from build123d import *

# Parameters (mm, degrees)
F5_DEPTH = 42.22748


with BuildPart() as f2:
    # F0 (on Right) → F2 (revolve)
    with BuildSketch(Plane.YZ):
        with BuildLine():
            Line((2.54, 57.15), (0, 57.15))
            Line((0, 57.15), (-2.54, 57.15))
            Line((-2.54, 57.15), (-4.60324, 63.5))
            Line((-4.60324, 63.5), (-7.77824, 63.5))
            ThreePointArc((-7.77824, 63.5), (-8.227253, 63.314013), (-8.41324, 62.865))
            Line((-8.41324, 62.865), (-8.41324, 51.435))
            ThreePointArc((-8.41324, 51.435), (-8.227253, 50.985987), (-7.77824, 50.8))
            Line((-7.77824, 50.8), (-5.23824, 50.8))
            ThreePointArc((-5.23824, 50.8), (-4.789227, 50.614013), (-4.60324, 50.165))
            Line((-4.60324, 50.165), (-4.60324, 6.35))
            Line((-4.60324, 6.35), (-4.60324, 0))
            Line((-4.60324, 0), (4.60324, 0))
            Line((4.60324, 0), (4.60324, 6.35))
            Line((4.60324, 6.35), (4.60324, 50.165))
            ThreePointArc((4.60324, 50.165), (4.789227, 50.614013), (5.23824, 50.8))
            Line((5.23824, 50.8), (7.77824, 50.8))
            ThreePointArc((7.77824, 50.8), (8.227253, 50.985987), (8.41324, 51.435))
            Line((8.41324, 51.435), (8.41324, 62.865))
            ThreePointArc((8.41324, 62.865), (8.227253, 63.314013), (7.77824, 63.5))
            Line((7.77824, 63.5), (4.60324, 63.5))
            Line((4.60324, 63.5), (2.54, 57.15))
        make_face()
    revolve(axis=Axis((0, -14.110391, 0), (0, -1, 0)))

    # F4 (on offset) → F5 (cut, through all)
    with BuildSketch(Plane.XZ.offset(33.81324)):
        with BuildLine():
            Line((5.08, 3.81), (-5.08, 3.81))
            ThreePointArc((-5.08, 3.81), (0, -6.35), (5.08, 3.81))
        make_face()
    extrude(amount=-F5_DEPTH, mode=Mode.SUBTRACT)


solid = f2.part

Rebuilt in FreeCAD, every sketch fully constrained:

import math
import FreeCAD as App
import Part
import Sketcher

V = App.Vector
Q = App.Units.Quantity

doc = App.newDocument("Part")
params = doc.addObject("Spreadsheet::Sheet", "Params")
for row, (alias, value) in enumerate([
    ("sketch1_width", "0.2 in"),
    ("sketch1_width2", "0.1 in"),
    ("sketch1_radius", "0.025 in"),
    ("sketch1_height", "0.45 in"),
    ("revolution_angle", "360 deg"),
    ("sketch2_radius", "0.25 in"),
    ("sketch2_width", "0.4 in"),
], start=1):
    params.set(f"A{row}", alias)
    params.set(f"B{row}", "=" + value)
    params.setAlias(f"B{row}", alias)

body = doc.addObject("PartDesign::Body", "Body")

# Sketch on YZ plane
sketch1 = body.newObject("Sketcher::SketchObject", "Sketch")
sketch1.AttachmentSupport = (doc.getObject("YZ_Plane"), [""])
sketch1.MapMode = "FlatFace"
sketch1.addGeometry([
    Part.LineSegment(V(2.5, 57.1, 0), V(-2.5, 57.1, 0)),  # 0
    Part.LineSegment(V(-2.5, 57.1, 0), V(-4.6, 63.5, 0)),  # 1
    Part.LineSegment(V(-4.6, 63.5, 0), V(-7.8, 63.5, 0)),  # 2
    Part.ArcOfCircle(Part.Circle(V(-7.8, 62.9, 0), V(0, 0, 1), 0.6), math.radians(90), math.radians(180)),  # 3
    Part.LineSegment(V(-8.4, 62.9, 0), V(-8.4, 51.4, 0)),  # 4
    Part.ArcOfCircle(Part.Circle(V(-7.8, 51.4, 0), V(0, 0, 1), 0.6), math.radians(180), math.radians(270)),  # 5
    Part.LineSegment(V(-7.8, 50.8, 0), V(-5.2, 50.8, 0)),  # 6
    Part.ArcOfCircle(Part.Circle(V(-5.2, 50.2, 0), V(0, 0, 1), 0.6), math.radians(0), math.radians(90)),  # 7
    Part.LineSegment(V(-4.6, 50.2, 0), V(-4.6, 0, 0)),  # 8
    Part.LineSegment(V(-4.6, 0, 0), V(4.6, 0, 0)),  # 9
    Part.LineSegment(V(4.6, 0, 0), V(4.6, 50.2, 0)),  # 10
    Part.ArcOfCircle(Part.Circle(V(5.2, 50.2, 0), V(0, 0, 1), 0.6), math.radians(90), math.radians(180)),  # 11
    Part.LineSegment(V(5.2, 50.8, 0), V(7.8, 50.8, 0)),  # 12
    Part.ArcOfCircle(Part.Circle(V(7.8, 51.4, 0), V(0, 0, 1), 0.6), math.radians(-90), math.radians(0)),  # 13
    Part.LineSegment(V(8.4, 51.4, 0), V(8.4, 62.9, 0)),  # 14
    Part.ArcOfCircle(Part.Circle(V(7.8, 62.9, 0), V(0, 0, 1), 0.6), math.radians(0), math.radians(90)),  # 15
    Part.LineSegment(V(7.8, 63.5, 0), V(4.6, 63.5, 0)),  # 16
    Part.LineSegment(V(4.6, 63.5, 0), V(2.5, 57.1, 0)),  # 17
], False)
sketch1.addConstraint([
    Sketcher.Constraint("Coincident", 0, 2, 1, 1),
    Sketcher.Constraint("Coincident", 1, 2, 2, 1),
    Sketcher.Constraint("Tangent", 2, 2, 3, 1),
    Sketcher.Constraint("Tangent", 3, 2, 4, 1),
    Sketcher.Constraint("Tangent", 4, 2, 5, 1),
    Sketcher.Constraint("Tangent", 5, 2, 6, 1),
    Sketcher.Constraint("Tangent", 6, 2, 7, 2),
    Sketcher.Constraint("Tangent", 7, 1, 8, 1),
    Sketcher.Constraint("Coincident", 8, 2, 9, 1),
    Sketcher.Constraint("Coincident", 9, 2, 10, 1),
    Sketcher.Constraint("Tangent", 10, 2, 11, 2),
    Sketcher.Constraint("Tangent", 11, 1, 12, 1),
    Sketcher.Constraint("Tangent", 12, 2, 13, 1),
    Sketcher.Constraint("Tangent", 13, 2, 14, 1),
    Sketcher.Constraint("Tangent", 14, 2, 15, 1),
    Sketcher.Constraint("Tangent", 15, 2, 16, 1),
    Sketcher.Constraint("Coincident", 16, 2, 17, 1),
    Sketcher.Constraint("Coincident", 17, 2, 0, 1),
    Sketcher.Constraint("Horizontal", 0),
    Sketcher.Constraint("Horizontal", 2),
    Sketcher.Constraint("Vertical", 4),
    Sketcher.Constraint("Horizontal", 6),
    Sketcher.Constraint("Vertical", 8),
    Sketcher.Constraint("Horizontal", 9),
    Sketcher.Constraint("Vertical", 10),
    Sketcher.Constraint("Horizontal", 12),
    Sketcher.Constraint("Vertical", 14),
    Sketcher.Constraint("Horizontal", 16),
    Sketcher.Constraint("Equal", 3, 5),
    Sketcher.Constraint("Equal", 5, 7),
    Sketcher.Constraint("Equal", 7, 11),
    Sketcher.Constraint("Equal", 11, 13),
    Sketcher.Constraint("Equal", 13, 15),
    Sketcher.Constraint("Symmetric", 8, 2, 9, 2, -1, 1),
    Sketcher.Constraint("Symmetric", 5, 3, 13, 3, -2),
    Sketcher.Constraint("Symmetric", 1, 2, 16, 2, -2),
    Sketcher.Constraint("Vertical", 1, 2, 7, 1),
    Sketcher.Constraint("Equal", 1, 17),
    Sketcher.Constraint("DistanceX", 0, 2, 0, 1, Q("0.2 in")),
    Sketcher.Constraint("DistanceX", 6, 1, 6, 2, Q("0.1 in")),
    Sketcher.Constraint("DistanceY", -1, 1, 5, 2, Q("2 in")),
    Sketcher.Constraint("Angle", 1, Q("107.999999 deg")),
    Sketcher.Constraint("Radius", 3, Q("0.025 in")),
    Sketcher.Constraint("DistanceY", 4, 2, 4, 1, Q("0.45 in")),
    Sketcher.Constraint("DistanceY", -1, 1, 0, 2, Q("2.25 in")),
])
sketch1.setExpression("Constraints[38]", "Params.sketch1_width")
sketch1.setExpression("Constraints[39]", "Params.sketch1_width2")
sketch1.setExpression("Constraints[42]", "Params.sketch1_radius")
sketch1.setExpression("Constraints[43]", "Params.sketch1_height")
revolution = body.newObject("PartDesign::Revolution", "Revolution")
revolution.Profile = sketch1
revolution.ReferenceAxis = (sketch1, ["H_Axis"])
revolution.setExpression("Angle", "Params.revolution_angle")

# Sketch on XZ plane
sketch2 = body.newObject("Sketcher::SketchObject", "Sketch001")
sketch2.AttachmentSupport = (doc.getObject("XZ_Plane"), [""])
sketch2.MapMode = "FlatFace"
sketch2.AttachmentOffset = App.Placement(V(0, 0, 33.81324), App.Rotation())
sketch2.addGeometry([
    Part.LineSegment(V(5, 4, 0), V(-5, 4, 0)),
    Part.ArcOfCircle(Part.Circle(V(0, 0, 0), V(0, 0, 1), 6), math.radians(143), math.radians(397)),
], False)
sketch2.addConstraint([
    Sketcher.Constraint("Coincident", 0, 1, 1, 2),
    Sketcher.Constraint("Coincident", 1, 1, 0, 2),
    Sketcher.Constraint("Horizontal", 0),
    Sketcher.Constraint("Coincident", 1, 3, -1, 1),
    Sketcher.Constraint("Radius", 1, Q("0.25 in")),
    Sketcher.Constraint("DistanceX", 0, 2, 0, 1, Q("0.4 in")),
])
sketch2.setExpression("Constraints[4]", "Params.sketch2_radius")
sketch2.setExpression("Constraints[5]", "Params.sketch2_width")
pocket1 = body.newObject("PartDesign::Pocket", "Pocket")
pocket1.Profile = sketch2
pocket1.Type = "ThroughAll"

doc.recompute()
